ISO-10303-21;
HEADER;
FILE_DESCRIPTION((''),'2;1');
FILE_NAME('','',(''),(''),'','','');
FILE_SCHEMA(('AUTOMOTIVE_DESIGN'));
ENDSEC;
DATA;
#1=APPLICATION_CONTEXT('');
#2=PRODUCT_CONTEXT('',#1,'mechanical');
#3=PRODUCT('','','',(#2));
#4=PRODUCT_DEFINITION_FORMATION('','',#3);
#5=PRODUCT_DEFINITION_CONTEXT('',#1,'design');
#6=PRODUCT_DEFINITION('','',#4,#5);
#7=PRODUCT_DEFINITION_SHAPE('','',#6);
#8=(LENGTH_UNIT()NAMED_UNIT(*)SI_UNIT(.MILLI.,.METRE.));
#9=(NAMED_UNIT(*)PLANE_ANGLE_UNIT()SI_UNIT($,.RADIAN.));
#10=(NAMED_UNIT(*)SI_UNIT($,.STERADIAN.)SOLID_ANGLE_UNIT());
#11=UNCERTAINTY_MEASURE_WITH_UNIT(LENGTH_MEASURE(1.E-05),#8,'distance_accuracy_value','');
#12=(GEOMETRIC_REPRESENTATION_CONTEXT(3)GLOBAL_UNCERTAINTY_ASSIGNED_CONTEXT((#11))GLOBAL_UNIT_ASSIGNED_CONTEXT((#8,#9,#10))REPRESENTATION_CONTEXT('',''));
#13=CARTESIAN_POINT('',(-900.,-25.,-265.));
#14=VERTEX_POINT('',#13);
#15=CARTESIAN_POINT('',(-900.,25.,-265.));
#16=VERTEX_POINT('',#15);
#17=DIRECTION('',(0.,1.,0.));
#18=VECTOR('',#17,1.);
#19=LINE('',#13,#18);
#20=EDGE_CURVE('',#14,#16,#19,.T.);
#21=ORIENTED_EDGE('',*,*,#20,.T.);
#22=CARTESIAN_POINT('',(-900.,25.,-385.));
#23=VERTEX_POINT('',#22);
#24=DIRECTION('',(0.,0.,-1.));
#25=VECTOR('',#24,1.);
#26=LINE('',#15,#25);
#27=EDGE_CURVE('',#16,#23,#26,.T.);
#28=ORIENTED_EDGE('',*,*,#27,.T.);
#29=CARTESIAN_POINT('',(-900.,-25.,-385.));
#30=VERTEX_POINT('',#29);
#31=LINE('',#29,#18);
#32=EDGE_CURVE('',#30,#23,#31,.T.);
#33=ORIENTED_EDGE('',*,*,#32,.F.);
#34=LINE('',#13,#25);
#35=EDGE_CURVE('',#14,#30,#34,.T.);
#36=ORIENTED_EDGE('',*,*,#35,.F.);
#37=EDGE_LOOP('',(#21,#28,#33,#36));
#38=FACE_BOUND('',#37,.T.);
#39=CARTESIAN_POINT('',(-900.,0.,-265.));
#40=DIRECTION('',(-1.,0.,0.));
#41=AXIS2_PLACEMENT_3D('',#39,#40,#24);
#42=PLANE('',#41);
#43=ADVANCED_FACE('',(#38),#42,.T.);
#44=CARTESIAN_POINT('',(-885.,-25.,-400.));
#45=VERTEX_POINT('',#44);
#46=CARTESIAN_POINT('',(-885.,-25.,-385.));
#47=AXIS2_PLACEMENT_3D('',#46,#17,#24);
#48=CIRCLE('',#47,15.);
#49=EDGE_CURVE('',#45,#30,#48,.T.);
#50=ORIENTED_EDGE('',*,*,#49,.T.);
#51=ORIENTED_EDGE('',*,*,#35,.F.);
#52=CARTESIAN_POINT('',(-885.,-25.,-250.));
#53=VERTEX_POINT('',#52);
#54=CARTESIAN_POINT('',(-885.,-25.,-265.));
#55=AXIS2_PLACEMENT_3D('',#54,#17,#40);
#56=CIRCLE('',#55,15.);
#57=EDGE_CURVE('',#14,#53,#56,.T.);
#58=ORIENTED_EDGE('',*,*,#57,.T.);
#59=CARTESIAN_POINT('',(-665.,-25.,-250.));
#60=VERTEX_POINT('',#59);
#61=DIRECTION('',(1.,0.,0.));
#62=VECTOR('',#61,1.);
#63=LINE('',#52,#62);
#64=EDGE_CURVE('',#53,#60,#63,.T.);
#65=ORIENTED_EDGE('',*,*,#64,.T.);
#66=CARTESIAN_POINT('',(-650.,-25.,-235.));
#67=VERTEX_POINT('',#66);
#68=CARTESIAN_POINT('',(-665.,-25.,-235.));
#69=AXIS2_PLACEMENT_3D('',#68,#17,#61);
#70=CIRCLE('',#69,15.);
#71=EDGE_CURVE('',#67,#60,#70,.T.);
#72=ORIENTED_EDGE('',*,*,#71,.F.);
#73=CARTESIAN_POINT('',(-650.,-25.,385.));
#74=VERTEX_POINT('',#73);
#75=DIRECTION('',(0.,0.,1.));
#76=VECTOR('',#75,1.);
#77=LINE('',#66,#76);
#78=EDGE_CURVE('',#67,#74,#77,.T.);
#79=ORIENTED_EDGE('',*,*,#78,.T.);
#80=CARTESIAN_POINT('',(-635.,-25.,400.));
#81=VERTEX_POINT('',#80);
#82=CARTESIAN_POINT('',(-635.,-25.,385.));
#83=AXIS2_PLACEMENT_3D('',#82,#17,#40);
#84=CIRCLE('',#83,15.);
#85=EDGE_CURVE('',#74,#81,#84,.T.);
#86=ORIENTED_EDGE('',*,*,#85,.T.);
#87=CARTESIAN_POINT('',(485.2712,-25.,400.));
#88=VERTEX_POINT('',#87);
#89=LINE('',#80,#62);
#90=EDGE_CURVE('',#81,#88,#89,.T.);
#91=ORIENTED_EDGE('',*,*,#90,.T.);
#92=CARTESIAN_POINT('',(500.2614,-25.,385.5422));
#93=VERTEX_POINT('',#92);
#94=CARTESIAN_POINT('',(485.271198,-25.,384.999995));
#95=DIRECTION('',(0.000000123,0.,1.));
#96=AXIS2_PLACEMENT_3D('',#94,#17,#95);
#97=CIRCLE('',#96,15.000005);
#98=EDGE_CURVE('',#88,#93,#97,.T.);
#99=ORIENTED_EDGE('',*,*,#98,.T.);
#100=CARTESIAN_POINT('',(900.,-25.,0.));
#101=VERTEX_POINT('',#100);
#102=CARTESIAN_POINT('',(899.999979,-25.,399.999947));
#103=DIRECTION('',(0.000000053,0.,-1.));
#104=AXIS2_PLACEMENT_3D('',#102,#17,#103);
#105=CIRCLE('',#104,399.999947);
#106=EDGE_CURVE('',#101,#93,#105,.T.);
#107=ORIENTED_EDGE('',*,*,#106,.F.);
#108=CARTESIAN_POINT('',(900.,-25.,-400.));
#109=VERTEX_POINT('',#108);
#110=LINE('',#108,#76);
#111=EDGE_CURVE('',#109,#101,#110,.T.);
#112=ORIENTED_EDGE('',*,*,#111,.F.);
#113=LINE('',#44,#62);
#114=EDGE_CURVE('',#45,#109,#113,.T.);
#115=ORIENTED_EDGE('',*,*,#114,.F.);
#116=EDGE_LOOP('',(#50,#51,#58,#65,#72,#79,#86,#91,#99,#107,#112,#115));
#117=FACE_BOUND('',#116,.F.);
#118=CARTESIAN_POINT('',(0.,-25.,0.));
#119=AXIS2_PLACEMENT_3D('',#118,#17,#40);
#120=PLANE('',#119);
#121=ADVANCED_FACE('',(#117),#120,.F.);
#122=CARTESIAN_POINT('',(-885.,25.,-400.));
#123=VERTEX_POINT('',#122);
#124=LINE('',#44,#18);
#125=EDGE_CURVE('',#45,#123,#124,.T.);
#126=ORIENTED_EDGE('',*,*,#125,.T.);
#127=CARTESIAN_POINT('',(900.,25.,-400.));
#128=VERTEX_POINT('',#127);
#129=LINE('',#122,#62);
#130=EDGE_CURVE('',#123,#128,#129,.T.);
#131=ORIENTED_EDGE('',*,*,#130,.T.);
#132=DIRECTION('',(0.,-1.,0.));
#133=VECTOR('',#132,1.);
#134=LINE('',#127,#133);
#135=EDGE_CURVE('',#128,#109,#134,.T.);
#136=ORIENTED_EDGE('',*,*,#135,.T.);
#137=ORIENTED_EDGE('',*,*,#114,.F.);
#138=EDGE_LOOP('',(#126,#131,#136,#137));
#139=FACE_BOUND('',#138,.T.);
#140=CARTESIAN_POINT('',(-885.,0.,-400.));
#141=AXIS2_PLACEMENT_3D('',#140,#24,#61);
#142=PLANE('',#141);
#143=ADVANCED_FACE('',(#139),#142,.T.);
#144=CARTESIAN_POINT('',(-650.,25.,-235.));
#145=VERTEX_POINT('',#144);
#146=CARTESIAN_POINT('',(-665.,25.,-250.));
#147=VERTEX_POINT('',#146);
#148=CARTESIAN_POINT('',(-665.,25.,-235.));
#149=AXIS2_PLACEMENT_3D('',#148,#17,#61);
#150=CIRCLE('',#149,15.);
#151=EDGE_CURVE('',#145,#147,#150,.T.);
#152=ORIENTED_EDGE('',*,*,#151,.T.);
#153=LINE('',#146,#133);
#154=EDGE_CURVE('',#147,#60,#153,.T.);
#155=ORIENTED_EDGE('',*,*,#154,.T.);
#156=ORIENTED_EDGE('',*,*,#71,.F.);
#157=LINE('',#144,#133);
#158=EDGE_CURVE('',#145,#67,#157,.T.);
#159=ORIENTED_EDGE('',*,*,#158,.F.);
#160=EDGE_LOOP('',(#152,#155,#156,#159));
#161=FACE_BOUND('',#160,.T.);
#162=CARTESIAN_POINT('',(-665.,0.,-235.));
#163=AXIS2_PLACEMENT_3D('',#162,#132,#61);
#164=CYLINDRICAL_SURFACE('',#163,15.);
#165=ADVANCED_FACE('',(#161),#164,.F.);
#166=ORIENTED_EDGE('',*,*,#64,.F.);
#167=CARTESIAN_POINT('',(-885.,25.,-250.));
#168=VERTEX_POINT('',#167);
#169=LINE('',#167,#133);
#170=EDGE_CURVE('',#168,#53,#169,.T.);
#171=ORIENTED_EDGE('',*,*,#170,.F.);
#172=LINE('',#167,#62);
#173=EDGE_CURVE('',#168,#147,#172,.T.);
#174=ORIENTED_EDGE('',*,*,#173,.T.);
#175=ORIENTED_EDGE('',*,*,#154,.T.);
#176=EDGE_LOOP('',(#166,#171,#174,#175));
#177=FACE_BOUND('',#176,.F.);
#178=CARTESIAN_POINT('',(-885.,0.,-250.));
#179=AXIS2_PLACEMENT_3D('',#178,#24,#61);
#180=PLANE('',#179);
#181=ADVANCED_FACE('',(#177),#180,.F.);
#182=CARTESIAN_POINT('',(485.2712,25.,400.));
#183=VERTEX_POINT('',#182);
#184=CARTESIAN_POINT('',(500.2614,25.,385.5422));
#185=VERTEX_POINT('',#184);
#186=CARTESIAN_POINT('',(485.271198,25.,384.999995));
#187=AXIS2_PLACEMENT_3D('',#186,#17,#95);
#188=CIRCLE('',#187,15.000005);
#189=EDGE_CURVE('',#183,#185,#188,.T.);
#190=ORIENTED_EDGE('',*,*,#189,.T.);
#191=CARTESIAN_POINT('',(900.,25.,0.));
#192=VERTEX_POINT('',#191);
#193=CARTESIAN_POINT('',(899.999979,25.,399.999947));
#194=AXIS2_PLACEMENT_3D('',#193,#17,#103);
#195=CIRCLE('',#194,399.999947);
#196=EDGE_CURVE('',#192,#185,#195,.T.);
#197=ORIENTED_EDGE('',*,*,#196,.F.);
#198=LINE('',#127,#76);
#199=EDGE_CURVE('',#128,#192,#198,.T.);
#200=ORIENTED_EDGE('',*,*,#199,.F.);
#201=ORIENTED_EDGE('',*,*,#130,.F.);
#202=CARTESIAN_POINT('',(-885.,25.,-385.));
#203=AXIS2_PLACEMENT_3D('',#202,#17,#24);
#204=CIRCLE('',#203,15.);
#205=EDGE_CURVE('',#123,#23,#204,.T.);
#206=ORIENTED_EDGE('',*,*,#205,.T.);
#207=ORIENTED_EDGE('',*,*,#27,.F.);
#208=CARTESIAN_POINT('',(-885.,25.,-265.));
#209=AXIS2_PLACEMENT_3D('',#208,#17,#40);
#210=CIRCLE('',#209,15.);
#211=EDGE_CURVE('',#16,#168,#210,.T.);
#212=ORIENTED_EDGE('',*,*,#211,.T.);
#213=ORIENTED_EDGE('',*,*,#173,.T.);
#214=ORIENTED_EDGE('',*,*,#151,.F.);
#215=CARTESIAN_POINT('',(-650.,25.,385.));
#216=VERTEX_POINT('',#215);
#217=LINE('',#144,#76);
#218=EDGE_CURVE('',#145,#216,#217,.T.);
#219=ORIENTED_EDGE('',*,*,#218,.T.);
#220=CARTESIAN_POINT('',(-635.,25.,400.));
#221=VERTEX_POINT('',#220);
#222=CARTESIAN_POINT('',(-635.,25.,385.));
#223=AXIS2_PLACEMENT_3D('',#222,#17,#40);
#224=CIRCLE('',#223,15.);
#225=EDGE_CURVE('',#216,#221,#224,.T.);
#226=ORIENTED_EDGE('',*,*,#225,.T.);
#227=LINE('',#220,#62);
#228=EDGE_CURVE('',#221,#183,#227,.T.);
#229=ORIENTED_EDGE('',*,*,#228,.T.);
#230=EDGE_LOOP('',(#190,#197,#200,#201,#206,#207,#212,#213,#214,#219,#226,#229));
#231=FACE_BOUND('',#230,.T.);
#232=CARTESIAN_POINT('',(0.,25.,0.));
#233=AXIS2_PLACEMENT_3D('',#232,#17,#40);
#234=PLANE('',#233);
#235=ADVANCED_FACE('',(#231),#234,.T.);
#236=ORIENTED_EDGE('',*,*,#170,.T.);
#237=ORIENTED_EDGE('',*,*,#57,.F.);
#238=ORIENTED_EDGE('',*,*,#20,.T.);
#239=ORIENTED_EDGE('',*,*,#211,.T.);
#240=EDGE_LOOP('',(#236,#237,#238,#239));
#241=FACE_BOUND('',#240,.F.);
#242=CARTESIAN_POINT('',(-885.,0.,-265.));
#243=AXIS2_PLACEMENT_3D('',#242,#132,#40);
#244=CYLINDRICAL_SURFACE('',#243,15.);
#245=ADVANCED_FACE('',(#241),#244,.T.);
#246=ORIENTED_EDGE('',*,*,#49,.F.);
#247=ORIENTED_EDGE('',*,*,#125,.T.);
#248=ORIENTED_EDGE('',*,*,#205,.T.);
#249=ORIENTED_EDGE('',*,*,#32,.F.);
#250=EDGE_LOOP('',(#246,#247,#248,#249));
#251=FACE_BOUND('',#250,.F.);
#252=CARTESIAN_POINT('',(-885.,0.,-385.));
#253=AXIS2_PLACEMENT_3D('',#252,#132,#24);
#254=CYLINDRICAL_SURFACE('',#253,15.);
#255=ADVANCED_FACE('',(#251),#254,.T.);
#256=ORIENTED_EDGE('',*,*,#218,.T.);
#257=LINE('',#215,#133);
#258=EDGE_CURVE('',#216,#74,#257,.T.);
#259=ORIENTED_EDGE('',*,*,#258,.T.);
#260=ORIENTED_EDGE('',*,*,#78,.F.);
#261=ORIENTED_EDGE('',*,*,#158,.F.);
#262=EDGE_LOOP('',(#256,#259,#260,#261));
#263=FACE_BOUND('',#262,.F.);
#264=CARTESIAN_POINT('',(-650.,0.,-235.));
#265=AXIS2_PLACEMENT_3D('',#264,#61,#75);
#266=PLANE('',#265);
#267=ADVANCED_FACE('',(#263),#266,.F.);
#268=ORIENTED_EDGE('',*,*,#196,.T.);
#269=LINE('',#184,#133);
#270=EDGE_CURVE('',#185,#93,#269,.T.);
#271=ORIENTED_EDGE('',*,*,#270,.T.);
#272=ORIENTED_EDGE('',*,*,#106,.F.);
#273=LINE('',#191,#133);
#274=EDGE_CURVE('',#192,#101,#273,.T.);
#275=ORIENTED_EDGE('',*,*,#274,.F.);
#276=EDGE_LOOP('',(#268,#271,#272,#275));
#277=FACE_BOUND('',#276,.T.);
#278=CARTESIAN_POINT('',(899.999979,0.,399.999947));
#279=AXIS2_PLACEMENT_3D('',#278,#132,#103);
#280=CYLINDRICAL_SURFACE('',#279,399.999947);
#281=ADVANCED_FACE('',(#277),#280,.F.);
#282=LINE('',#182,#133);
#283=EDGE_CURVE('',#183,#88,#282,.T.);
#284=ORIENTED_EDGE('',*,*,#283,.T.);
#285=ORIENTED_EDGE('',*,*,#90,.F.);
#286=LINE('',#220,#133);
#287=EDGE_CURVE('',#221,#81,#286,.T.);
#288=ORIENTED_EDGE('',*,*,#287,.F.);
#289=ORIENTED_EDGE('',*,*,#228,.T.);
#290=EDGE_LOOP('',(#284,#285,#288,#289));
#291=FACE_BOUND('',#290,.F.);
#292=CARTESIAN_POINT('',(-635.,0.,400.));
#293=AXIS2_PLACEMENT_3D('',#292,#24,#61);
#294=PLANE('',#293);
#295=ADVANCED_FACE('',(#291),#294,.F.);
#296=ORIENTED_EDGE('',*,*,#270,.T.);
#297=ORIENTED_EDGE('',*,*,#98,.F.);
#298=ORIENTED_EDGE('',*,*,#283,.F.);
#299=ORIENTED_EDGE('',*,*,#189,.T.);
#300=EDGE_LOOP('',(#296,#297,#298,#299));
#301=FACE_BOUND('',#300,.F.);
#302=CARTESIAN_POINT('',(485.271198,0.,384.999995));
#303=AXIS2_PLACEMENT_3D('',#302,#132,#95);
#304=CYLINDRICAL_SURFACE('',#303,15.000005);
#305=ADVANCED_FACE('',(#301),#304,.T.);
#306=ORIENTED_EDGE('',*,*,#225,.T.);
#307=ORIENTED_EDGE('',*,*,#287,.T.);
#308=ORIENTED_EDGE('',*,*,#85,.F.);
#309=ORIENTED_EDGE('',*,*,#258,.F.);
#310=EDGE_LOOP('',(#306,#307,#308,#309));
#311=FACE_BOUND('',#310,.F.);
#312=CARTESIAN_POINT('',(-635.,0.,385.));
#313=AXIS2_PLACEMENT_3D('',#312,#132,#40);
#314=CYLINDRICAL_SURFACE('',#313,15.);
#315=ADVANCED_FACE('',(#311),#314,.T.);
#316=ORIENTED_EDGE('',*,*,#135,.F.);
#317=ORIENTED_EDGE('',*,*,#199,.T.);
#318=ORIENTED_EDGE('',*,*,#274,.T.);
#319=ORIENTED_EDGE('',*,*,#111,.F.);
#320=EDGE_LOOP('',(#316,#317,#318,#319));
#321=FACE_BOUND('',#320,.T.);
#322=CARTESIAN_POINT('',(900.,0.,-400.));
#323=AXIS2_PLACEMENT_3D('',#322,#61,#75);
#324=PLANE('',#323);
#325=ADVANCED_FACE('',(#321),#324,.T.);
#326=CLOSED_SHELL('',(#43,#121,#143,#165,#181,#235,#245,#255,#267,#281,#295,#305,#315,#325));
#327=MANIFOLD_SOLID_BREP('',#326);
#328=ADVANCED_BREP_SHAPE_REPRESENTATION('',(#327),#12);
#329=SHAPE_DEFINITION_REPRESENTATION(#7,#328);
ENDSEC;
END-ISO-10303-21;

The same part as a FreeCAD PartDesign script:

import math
import FreeCAD as App
import Part
import Sketcher
from FreeCAD import Vector
Q = App.Units.Quantity

doc = App.newDocument("Part")
body = doc.addObject("PartDesign::Body", "Body")

sketch1 = body.newObject("Sketcher::SketchObject", "Sketch")
sketch1.AttachmentSupport = (doc.getObject("XZ_Plane"), [""])
sketch1.MapMode = "FlatFace"
sketch1.addGeometry([
    Part.LineSegment(Vector(900, -400, 0), Vector(-885, -400, 0)),
    Part.ArcOfCircle(Part.Circle(Vector(-885, -385, 0), Vector(0, 0, 1), 15), math.radians(180), math.radians(270)),
    Part.LineSegment(Vector(-900, -385, 0), Vector(-900, -265, 0)),
    Part.ArcOfCircle(Part.Circle(Vector(-885, -265, 0), Vector(0, 0, 1), 15), math.radians(90), math.radians(180)),
    Part.LineSegment(Vector(-885, -250, 0), Vector(-665, -250, 0)),
    Part.ArcOfCircle(Part.Circle(Vector(-665, -235, 0), Vector(0, 0, 1), 15), math.radians(-90), math.radians(0)),
    Part.LineSegment(Vector(-650, -235, 0), Vector(-650, 385, 0)),
    Part.ArcOfCircle(Part.Circle(Vector(-635, 385, 0), Vector(0, 0, 1), 15), math.radians(90), math.radians(180)),
    Part.LineSegment(Vector(-635, 400, 0), Vector(485, 400, 0)),
    Part.ArcOfCircle(Part.Circle(Vector(485, 385, 0), Vector(0, 0, 1), 15), math.radians(2), math.radians(90)),
    Part.ArcOfCircle(Part.Circle(Vector(900, 400, 0), Vector(0, 0, 1), 400), math.radians(-178), math.radians(-90)),
    Part.LineSegment(Vector(900, 0, 0), Vector(900, -400, 0)),
], False)
sketch1.addConstraint([
    Sketcher.Constraint("Tangent", 0, 2, 1, 2),
    Sketcher.Constraint("Tangent", 1, 1, 2, 1),
    Sketcher.Constraint("Tangent", 2, 2, 3, 2),
    Sketcher.Constraint("Tangent", 3, 1, 4, 1),
    Sketcher.Constraint("Tangent", 4, 2, 5, 1),
    Sketcher.Constraint("Tangent", 5, 2, 6, 1),
    Sketcher.Constraint("Tangent", 6, 2, 7, 2),
    Sketcher.Constraint("Tangent", 7, 1, 8, 1),
    Sketcher.Constraint("Tangent", 8, 2, 9, 2),
    Sketcher.Constraint("Tangent", 9, 1, 10, 1),
    Sketcher.Constraint("Coincident", 10, 2, 11, 1),
    Sketcher.Constraint("Coincident", 11, 2, 0, 1),
    Sketcher.Constraint("Horizontal", 0),
    Sketcher.Constraint("Vertical", 2),
    Sketcher.Constraint("Horizontal", 4),
    Sketcher.Constraint("Vertical", 6),
    Sketcher.Constraint("Horizontal", 8),
    Sketcher.Constraint("Vertical", 11),
    Sketcher.Constraint("Equal", 1, 3),
    Sketcher.Constraint("Equal", 3, 5),
    Sketcher.Constraint("Equal", 5, 7),
    Sketcher.Constraint("Equal", 7, 9),
    Sketcher.Constraint("PointOnObject", 10, 2, -1),
    Sketcher.Constraint("Horizontal", 10, 3, 7, 1),
    Sketcher.Constraint("Radius", 1, Q("15 mm")),
    Sketcher.Constraint("Radius", 10, Q("400 mm")),
    Sketcher.Constraint("DistanceY", 11, 2, 11, 1, Q("400 mm")),
    Sketcher.Constraint("DistanceY", 3, 1, -1, 1, Q("250 mm")),
    Sketcher.Constraint("DistanceX", 5, 2, -1, 1, Q("650 mm")),
    Sketcher.Constraint("DistanceX", 3, 3, 7, 3, Q("250 mm")),
    Sketcher.Constraint("DistanceX", 0, 2, 0, 1, Q("1785 mm")),
    Sketcher.Constraint("DistanceX", -1, 1, 10, 3, Q("900 mm")),
])
pad1 = body.newObject("PartDesign::Pad", "Pad")
pad1.Profile = sketch1
pad1.Length = 50
pad1.Midplane = True

doc.recompute()
